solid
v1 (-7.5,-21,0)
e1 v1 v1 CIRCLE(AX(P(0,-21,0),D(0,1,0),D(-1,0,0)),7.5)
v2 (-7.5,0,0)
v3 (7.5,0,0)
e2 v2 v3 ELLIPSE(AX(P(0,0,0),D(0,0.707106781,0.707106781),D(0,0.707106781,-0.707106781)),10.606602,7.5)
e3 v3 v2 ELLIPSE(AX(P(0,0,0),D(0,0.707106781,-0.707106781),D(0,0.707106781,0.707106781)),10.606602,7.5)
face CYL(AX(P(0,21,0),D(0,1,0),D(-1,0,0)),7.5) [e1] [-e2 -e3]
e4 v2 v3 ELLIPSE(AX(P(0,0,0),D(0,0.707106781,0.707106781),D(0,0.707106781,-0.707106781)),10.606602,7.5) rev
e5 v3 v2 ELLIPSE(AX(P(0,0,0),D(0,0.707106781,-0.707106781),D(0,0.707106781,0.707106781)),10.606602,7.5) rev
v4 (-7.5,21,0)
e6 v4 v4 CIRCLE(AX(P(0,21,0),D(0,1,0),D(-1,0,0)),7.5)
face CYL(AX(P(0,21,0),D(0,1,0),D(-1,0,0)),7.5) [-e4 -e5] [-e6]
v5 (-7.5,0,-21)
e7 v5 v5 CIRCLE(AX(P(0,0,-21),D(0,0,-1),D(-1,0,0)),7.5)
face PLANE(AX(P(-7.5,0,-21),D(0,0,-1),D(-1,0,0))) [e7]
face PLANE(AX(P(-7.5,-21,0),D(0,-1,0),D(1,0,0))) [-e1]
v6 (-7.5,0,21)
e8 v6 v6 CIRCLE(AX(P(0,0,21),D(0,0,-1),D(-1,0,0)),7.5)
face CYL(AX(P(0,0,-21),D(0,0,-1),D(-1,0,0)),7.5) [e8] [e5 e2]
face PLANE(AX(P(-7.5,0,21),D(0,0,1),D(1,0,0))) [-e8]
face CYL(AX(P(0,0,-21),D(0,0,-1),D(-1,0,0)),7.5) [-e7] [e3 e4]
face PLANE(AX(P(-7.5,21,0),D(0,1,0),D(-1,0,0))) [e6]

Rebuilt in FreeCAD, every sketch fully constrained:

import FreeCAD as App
import Part
import Sketcher

V = App.Vector
Q = App.Units.Quantity

doc = App.newDocument("Part")
body = doc.addObject("PartDesign::Body", "Body")

# Sketch on XY plane
sketch1 = body.newObject("Sketcher::SketchObject", "Sketch")
sketch1.AttachmentSupport = (doc.getObject("XY_Plane"), [""])
sketch1.MapMode = "FlatFace"
sketch1.addGeometry(Part.LineSegment(V(-8, 21, 0), V(-8, -21, 0)), False)
sketch1.addGeometry(Part.LineSegment(V(-8, -21, 0), V(0, -21, 0)), False)
sketch1.addGeometry(Part.LineSegment(V(0, -21, 0), V(0, 21, 0)), False)
sketch1.addGeometry(Part.LineSegment(V(0, 21, 0), V(-8, 21, 0)), False)
sketch1.addConstraint(Sketcher.Constraint("Coincident", 0, 2, 1, 1))
sketch1.addConstraint(Sketcher.Constraint("Coincident", 1, 2, 2, 1))
sketch1.addConstraint(Sketcher.Constraint("Coincident", 2, 2, 3, 1))
sketch1.addConstraint(Sketcher.Constraint("Coincident", 3, 2, 0, 1))
sketch1.addConstraint(Sketcher.Constraint("Vertical", 0))
sketch1.addConstraint(Sketcher.Constraint("Horizontal", 1))
sketch1.addConstraint(Sketcher.Constraint("Vertical", 2))
sketch1.addConstraint(Sketcher.Constraint("Horizontal", 3))
sketch1.addConstraint(Sketcher.Constraint("Symmetric", 1, 2, 2, 2, -1, 1))
sketch1.addConstraint(Sketcher.Constraint("DistanceY", 0, 2, 0, 1, Q("42 mm")))
sketch1.addConstraint(Sketcher.Constraint("DistanceX", 1, 1, 1, 2, Q("7.5 mm")))
revolution = body.newObject("PartDesign::Revolution", "Revolution")
revolution.Profile = sketch1
revolution.ReferenceAxis = (sketch1, ["V_Axis"])
revolution.Angle = 360

# Sketch on XZ plane
sketch2 = body.newObject("Sketcher::SketchObject", "Sketch001")
sketch2.AttachmentSupport = (doc.getObject("XZ_Plane"), [""])
sketch2.MapMode = "FlatFace"
sketch2.addGeometry(Part.LineSegment(V(-8, -21, 0), V(-8, 21, 0)), False)
sketch2.addGeometry(Part.LineSegment(V(-8, 21, 0), V(0, 21, 0)), False)
sketch2.addGeometry(Part.LineSegment(V(0, 21, 0), V(0, -21, 0)), False)
sketch2.addGeometry(Part.LineSegment(V(0, -21, 0), V(-8, -21, 0)), False)
sketch2.addConstraint(Sketcher.Constraint("Coincident", 0, 2, 1, 1))
sketch2.addConstraint(Sketcher.Constraint("Coincident", 1, 2, 2, 1))
sketch2.addConstraint(Sketcher.Constraint("Coincident", 2, 2, 3, 1))
sketch2.addConstraint(Sketcher.Constraint("Coincident", 3, 2, 0, 1))
sketch2.addConstraint(Sketcher.Constraint("Vertical", 0))
sketch2.addConstraint(Sketcher.Constraint("Horizontal", 1))
sketch2.addConstraint(Sketcher.Constraint("Vertical", 2))
sketch2.addConstraint(Sketcher.Constraint("Horizontal", 3))
sketch2.addConstraint(Sketcher.Constraint("Symmetric", 1, 2, 2, 2, -1, 1))
sketch2.addConstraint(Sketcher.Constraint("DistanceY", 0, 1, 0, 2, Q("42 mm")))
sketch2.addConstraint(Sketcher.Constraint("DistanceX", 1, 1, 1, 2, Q("7.5 mm")))
revolution2 = body.newObject("PartDesign::Revolution", "Revolution001")
revolution2.Profile = sketch2
revolution2.ReferenceAxis = (sketch2, ["V_Axis"])
revolution2.Angle = 360

doc.recompute()
